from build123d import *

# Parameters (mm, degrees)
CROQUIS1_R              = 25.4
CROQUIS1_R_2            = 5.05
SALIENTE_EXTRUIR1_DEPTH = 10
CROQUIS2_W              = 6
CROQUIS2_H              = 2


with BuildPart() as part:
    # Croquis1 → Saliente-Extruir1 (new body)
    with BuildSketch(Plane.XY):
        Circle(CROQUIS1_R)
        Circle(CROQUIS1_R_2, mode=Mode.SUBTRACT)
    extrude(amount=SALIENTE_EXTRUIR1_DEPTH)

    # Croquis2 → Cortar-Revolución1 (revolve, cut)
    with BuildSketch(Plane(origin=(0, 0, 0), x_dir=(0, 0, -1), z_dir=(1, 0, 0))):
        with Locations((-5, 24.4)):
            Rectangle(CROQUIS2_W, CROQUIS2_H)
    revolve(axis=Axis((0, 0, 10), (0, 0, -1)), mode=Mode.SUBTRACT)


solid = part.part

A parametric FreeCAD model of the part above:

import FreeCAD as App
import Part
import Sketcher
from FreeCAD import Vector
Q = App.Units.Quantity

doc = App.newDocument("Part")
params = doc.addObject("Spreadsheet::Sheet", "Params")
for row, (alias, value) in enumerate([
    ("sketch1_diameter", "50.8 mm"),
    ("sketch1_diameter2", "10.1 mm"),
    ("pad1_length", "10 mm"),
    ("sketch2_width", "2 mm"),
    ("sketch2_height", "6 mm"),
    ("groove_angle", "360 deg"),
], start=1):
    params.set(f"A{row}", alias)
    params.set(f"B{row}", "=" + value)
    params.setAlias(f"B{row}", alias)

body = doc.addObject("PartDesign::Body", "Body")

sketch1 = body.newObject("Sketcher::SketchObject", "Sketch")
sketch1.AttachmentSupport = (doc.getObject("XY_Plane"), [""])
sketch1.MapMode = "FlatFace"
sketch1.addGeometry(Part.Circle(Vector(0, 0, 0), Vector(0, 0, 1), 25.4), False)
sketch1.addGeometry(Part.Circle(Vector(0, 0, 0), Vector(0, 0, 1), 5.05), False)
sketch1.addConstraint(Sketcher.Constraint("Coincident", 0, 3, -1, 1))
sketch1.addConstraint(Sketcher.Constraint("Coincident", 1, 3, -1, 1))
sketch1.addConstraint(Sketcher.Constraint("Diameter", 0, Q("50.8 mm")))
sketch1.addConstraint(Sketcher.Constraint("Diameter", 1, Q("10.1 mm")))
sketch1.setExpression("Constraints[2]", "Params.sketch1_diameter")
sketch1.setExpression("Constraints[3]", "Params.sketch1_diameter2")
pad1 = body.newObject("PartDesign::Pad", "Pad")
pad1.Profile = sketch1
pad1.setExpression("Length", "Params.pad1_length")

sketch2 = body.newObject("Sketcher::SketchObject", "Sketch001")
sketch2.AttachmentSupport = (doc.getObject("YZ_Plane"), [""])
sketch2.MapMode = "FlatFace"
sketch2.addGeometry(Part.LineSegment(Vector(25.4, 8, 0), Vector(23.4, 8, 0)), False)
sketch2.addGeometry(Part.LineSegment(Vector(23.4, 8, 0), Vector(23.4, 2, 0)), False)
sketch2.addGeometry(Part.LineSegment(Vector(23.4, 2, 0), Vector(25.4, 2, 0)), False)
sketch2.addGeometry(Part.LineSegment(Vector(25.4, 2, 0), Vector(25.4, 8, 0)), False)
sketch2.addConstraint(Sketcher.Constraint("Coincident", 0, 2, 1, 1))
sketch2.addConstraint(Sketcher.Constraint("Coincident", 1, 2, 2, 1))
sketch2.addConstraint(Sketcher.Constraint("Coincident", 2, 2, 3, 1))
sketch2.addConstraint(Sketcher.Constraint("Coincident", 3, 2, 0, 1))
sketch2.addConstraint(Sketcher.Constraint("Horizontal", 0))
sketch2.addConstraint(Sketcher.Constraint("Vertical", 1))
sketch2.addConstraint(Sketcher.Constraint("Horizontal", 2))
sketch2.addConstraint(Sketcher.Constraint("Vertical", 3))
sketch2.addConstraint(Sketcher.Constraint("DistanceX", 0, 2, 0, 1, Q("2 mm")))
sketch2.addConstraint(Sketcher.Constraint("DistanceY", 1, 2, 1, 1, Q("6 mm")))
sketch2.addConstraint(Sketcher.Constraint("DistanceY", -1, 1, 0, 2, Q("8 mm")))
sketch2.addConstraint(Sketcher.Constraint("DistanceX", -1, 1, 0, 2, Q("23.4 mm")))
sketch2.setExpression("Constraints[8]", "Params.sketch2_width")
sketch2.setExpression("Constraints[9]", "Params.sketch2_height")
groove = body.newObject("PartDesign::Groove", "Groove")
groove.Profile = sketch2
groove.ReferenceAxis = (sketch2, ["V_Axis"])
groove.setExpression("Angle", "Params.groove_angle")

doc.recompute()
